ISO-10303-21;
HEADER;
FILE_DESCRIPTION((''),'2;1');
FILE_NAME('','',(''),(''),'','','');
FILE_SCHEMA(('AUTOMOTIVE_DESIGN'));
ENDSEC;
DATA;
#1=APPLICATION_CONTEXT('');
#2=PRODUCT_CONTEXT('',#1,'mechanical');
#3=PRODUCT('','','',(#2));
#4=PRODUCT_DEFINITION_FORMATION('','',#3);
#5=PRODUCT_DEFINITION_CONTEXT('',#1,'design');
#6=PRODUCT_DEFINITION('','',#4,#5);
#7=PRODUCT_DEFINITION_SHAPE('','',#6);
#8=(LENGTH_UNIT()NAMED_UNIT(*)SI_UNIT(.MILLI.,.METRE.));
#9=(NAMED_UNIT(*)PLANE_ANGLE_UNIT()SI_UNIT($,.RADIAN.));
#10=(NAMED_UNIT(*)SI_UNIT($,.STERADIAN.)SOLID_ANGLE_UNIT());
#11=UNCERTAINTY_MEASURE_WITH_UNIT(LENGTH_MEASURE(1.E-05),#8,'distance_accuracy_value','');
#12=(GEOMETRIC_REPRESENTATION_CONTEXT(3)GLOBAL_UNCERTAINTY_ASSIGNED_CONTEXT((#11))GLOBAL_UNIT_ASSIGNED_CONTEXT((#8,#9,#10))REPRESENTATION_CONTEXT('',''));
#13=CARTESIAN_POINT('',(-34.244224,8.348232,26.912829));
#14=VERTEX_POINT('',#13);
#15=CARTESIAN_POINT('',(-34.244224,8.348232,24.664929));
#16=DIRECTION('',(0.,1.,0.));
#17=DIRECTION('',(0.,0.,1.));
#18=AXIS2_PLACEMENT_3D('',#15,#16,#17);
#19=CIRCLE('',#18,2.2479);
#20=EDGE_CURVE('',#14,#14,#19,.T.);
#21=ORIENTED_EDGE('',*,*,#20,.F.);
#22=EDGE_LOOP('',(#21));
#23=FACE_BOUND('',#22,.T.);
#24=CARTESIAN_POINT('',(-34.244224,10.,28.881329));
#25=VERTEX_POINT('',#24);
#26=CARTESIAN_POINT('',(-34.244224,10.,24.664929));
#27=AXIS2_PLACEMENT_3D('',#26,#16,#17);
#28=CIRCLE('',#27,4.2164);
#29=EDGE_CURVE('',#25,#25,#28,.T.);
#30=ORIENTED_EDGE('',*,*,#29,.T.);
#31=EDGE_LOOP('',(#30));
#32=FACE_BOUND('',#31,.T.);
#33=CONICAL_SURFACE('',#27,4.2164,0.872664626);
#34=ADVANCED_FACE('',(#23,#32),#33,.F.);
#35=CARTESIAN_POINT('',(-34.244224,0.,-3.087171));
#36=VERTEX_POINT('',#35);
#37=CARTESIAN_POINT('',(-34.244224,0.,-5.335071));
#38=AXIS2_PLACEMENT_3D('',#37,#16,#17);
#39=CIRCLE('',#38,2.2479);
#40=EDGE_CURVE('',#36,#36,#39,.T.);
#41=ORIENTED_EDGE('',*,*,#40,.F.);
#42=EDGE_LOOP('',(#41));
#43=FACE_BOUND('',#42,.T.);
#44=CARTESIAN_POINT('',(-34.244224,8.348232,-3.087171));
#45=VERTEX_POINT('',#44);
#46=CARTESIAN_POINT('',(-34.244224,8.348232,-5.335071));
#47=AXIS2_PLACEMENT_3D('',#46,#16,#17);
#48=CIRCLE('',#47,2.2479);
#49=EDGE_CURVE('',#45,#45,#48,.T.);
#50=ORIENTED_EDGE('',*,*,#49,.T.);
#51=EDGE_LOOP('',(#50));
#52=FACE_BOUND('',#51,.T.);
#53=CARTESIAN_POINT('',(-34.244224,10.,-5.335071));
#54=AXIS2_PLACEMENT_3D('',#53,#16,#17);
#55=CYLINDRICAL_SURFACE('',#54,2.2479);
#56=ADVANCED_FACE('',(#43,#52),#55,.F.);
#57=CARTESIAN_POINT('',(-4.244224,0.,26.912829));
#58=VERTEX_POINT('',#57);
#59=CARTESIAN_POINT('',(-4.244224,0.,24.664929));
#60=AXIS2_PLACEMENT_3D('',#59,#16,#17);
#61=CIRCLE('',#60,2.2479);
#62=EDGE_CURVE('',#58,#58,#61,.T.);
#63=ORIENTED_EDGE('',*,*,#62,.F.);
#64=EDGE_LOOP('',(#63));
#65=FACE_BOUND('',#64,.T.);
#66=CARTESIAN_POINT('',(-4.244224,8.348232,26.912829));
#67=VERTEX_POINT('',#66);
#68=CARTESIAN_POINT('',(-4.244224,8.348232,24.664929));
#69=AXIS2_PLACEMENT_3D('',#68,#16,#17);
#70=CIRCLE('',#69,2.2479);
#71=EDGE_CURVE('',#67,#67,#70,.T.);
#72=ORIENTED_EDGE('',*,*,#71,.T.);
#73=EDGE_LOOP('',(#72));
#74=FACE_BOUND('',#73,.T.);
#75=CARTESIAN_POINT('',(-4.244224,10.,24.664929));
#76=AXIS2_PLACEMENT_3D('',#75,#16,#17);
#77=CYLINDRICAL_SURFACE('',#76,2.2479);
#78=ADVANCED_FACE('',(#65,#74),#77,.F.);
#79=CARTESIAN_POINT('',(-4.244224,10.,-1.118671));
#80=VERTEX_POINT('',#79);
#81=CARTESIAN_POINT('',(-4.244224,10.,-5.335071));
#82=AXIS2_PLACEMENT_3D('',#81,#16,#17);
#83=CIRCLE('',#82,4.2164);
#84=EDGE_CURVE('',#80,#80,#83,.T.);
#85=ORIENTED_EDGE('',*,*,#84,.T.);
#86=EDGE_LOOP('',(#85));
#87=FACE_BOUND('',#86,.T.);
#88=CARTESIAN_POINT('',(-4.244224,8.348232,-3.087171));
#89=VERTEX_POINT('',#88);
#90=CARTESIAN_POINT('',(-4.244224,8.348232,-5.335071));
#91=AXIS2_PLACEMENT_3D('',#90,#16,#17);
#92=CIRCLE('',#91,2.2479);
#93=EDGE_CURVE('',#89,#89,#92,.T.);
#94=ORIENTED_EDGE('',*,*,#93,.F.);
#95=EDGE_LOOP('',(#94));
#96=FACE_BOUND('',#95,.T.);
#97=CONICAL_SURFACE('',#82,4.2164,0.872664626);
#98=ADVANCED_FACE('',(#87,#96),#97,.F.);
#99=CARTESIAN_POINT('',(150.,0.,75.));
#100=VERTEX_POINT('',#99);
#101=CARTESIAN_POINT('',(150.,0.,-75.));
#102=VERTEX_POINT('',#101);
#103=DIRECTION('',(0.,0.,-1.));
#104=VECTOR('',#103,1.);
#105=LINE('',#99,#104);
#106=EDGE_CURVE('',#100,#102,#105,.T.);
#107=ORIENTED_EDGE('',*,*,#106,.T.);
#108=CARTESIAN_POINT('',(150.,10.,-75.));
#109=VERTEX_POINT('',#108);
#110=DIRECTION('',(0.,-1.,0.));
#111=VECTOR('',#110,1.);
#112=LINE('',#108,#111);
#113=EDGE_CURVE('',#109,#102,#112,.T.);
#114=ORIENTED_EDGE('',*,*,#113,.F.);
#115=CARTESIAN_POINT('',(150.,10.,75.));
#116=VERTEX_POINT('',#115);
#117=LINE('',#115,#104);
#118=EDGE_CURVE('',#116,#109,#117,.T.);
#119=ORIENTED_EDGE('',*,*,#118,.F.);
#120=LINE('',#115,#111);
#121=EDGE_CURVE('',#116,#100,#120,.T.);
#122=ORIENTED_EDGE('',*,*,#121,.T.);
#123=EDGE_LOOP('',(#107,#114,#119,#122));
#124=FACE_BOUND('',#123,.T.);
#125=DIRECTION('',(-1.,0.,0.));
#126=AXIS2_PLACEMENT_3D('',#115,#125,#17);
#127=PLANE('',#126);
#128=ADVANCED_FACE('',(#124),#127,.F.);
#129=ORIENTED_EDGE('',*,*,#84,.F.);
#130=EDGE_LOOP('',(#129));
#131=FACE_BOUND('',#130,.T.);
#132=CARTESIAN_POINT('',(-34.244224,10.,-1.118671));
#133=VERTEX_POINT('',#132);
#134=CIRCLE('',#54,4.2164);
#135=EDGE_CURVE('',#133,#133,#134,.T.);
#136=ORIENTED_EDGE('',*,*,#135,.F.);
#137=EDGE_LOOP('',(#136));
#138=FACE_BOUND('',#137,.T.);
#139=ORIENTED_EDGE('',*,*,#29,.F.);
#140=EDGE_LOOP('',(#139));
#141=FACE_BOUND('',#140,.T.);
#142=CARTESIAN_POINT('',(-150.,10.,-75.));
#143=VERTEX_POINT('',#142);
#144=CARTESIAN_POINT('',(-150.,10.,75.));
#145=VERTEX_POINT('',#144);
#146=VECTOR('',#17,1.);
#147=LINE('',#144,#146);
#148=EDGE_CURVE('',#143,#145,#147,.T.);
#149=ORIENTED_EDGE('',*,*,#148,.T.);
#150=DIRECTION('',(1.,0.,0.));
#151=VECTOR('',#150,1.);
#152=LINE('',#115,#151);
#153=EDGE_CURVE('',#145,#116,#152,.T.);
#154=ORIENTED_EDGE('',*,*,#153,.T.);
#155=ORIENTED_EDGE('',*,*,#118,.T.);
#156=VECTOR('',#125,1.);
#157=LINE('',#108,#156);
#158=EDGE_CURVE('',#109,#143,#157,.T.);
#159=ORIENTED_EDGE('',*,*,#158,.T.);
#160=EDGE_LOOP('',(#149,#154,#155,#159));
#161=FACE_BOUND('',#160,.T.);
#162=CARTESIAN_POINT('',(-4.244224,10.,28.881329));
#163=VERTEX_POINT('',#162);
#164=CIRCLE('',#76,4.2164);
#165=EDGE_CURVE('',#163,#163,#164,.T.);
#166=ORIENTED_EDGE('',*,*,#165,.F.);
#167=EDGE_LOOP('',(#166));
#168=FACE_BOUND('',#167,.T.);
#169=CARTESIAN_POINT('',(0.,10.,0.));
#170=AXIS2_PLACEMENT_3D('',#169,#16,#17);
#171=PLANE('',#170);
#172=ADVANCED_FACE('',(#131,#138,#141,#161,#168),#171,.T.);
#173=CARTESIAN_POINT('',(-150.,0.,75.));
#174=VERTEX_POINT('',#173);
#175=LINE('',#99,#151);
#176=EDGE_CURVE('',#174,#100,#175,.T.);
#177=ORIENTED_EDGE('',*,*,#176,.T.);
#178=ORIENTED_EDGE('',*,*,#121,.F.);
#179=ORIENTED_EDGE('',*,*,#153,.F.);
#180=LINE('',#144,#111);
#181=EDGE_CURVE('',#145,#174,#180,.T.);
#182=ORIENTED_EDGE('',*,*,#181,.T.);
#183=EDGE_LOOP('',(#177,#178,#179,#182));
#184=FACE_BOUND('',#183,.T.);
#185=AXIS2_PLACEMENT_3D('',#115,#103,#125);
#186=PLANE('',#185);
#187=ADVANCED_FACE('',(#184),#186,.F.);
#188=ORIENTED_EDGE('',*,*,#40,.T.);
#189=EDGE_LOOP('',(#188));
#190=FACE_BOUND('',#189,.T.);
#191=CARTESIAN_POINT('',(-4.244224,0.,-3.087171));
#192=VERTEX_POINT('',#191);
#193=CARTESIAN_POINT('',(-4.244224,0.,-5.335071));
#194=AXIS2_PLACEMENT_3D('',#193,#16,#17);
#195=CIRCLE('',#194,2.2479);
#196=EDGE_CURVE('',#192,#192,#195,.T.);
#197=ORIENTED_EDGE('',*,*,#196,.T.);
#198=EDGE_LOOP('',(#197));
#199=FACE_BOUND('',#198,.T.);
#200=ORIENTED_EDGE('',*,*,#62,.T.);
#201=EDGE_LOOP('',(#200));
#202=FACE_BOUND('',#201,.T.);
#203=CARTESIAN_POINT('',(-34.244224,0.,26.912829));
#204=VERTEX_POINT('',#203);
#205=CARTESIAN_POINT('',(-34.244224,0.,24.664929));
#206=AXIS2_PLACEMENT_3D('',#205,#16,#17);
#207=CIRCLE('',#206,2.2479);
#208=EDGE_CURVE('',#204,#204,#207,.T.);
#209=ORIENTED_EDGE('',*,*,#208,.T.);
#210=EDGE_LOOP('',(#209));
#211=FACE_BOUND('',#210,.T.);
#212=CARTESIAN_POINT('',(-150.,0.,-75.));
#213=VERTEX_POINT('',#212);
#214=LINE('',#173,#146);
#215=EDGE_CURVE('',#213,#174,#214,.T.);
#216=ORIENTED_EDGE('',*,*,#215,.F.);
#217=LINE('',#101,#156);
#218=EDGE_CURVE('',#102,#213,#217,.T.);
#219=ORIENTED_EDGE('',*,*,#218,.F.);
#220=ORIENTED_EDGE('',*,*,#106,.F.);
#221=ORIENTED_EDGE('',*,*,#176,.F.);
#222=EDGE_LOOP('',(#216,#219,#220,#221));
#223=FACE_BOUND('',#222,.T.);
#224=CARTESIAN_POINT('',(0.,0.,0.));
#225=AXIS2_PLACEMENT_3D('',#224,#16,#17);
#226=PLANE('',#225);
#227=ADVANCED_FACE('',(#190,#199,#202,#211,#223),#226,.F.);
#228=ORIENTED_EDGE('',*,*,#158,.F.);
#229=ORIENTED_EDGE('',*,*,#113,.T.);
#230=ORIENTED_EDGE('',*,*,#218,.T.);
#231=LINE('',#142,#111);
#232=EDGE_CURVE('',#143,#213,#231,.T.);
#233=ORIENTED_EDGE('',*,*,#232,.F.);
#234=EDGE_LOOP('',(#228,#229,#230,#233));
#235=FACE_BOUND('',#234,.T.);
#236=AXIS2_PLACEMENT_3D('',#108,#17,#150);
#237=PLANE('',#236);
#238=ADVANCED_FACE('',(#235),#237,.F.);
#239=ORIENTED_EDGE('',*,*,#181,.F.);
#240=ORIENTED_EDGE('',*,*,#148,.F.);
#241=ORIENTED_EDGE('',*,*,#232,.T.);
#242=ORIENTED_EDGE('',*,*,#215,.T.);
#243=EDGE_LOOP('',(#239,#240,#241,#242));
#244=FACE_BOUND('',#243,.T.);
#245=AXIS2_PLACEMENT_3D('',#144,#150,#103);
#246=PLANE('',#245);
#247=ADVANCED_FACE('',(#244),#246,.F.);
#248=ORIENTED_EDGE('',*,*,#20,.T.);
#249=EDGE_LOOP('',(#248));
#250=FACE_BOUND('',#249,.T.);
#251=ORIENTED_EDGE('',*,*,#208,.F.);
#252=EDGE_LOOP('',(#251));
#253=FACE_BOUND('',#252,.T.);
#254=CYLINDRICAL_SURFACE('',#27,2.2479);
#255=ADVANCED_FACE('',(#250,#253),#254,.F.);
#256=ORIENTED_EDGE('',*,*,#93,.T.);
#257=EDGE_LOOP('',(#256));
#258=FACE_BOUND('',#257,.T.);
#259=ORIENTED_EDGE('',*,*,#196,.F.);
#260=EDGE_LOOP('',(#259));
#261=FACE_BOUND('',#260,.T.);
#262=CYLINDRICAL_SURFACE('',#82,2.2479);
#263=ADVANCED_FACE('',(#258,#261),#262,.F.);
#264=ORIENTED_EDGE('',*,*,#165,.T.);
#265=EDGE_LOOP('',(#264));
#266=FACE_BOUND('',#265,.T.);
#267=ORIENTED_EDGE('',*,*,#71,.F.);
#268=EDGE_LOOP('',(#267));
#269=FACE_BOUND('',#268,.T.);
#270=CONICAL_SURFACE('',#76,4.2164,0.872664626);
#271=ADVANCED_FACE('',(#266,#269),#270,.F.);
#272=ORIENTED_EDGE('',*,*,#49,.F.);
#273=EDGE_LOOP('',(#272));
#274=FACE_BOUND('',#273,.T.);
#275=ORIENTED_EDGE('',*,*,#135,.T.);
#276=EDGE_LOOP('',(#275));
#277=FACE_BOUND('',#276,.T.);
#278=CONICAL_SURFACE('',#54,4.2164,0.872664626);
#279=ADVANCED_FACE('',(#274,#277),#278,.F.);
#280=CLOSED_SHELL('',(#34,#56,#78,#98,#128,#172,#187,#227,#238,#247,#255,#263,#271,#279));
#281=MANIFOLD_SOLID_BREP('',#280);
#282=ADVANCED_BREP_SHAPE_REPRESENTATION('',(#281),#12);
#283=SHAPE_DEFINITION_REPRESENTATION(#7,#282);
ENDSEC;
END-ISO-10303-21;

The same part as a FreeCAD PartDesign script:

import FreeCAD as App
import Part
import Sketcher
from FreeCAD import Vector

doc = App.newDocument("Part")
body = doc.addObject("PartDesign::Body", "Body")

sketch1 = body.newObject("Sketcher::SketchObject", "Sketch")
sketch1.AttachmentSupport = (doc.getObject("XZ_Plane"), [""])
sketch1.MapMode = "FlatFace"
sketch1.addGeometry([
    Part.LineSegment(Vector(-150, -75, 0), Vector(-150, 75, 0)),
    Part.LineSegment(Vector(-150, 75, 0), Vector(150, 75, 0)),
    Part.LineSegment(Vector(150, 75, 0), Vector(150, -75, 0)),
    Part.LineSegment(Vector(150, -75, 0), Vector(-150, -75, 0)),
], False)
sketch1.addConstraint([
    Sketcher.Constraint("Coincident", 0, 2, 1, 1),
    Sketcher.Constraint("Coincident", 1, 2, 2, 1),
    Sketcher.Constraint("Coincident", 2, 2, 3, 1),
    Sketcher.Constraint("Coincident", 3, 2, 0, 1),
    Sketcher.Constraint("Vertical", 0),
    Sketcher.Constraint("Horizontal", 1),
    Sketcher.Constraint("Vertical", 2),
    Sketcher.Constraint("Horizontal", 3),
    Sketcher.Constraint("Symmetric", 0, 2, 2, 2, -1, 1),
    Sketcher.Constraint("DistanceX", 1, 1, 1, 2, 300.0),
    Sketcher.Constraint("DistanceY", 0, 1, 0, 2, 150.0),
])
pad1 = body.newObject("PartDesign::Pad", "Pad")
pad1.Profile = sketch1
pad1.Length = 10
pad1.Reversed = True

sketch2 = body.newObject("Sketcher::SketchObject", "Sketch001")
sketch2.AttachmentSupport = (doc.getObject("XZ_Plane"), [""])
sketch2.MapMode = "FlatFace"
sketch2.AttachmentOffset = App.Placement(Vector(0, 0, -10), App.Rotation())
sketch2.addGeometry([
    Part.Circle(Vector(-4.244224, -5.335071, 0), Vector(0, 0, 1), 2.2479),
    Part.Circle(Vector(-4.244224, 24.664929, 0), Vector(0, 0, 1), 2.2479),
    Part.Circle(Vector(-34.244224, 24.664929, 0), Vector(0, 0, 1), 2.2479),
    Part.Circle(Vector(-34.244224, -5.335071, 0), Vector(0, 0, 1), 2.2479),
], False)
sketch2.addConstraint([
    Sketcher.Constraint("Equal", 0, 1),
    Sketcher.Constraint("Equal", 1, 2),
    Sketcher.Constraint("Equal", 2, 3),
    Sketcher.Constraint("Horizontal", 1, 3, 2, 3),
    Sketcher.Constraint("Horizontal", 0, 3, 3, 3),
    Sketcher.Constraint("Vertical", 0, 3, 1, 3),
    Sketcher.Constraint("Vertical", 2, 3, 3, 3),
    Sketcher.Constraint("DistanceY", 0, 3, 1, 3, 30.0),
    Sketcher.Constraint("DistanceX", 2, 3, 1, 3, 30.0),
    Sketcher.Constraint("Diameter", 0, 4.4958),
    Sketcher.Constraint("DistanceY", 0, 3, -1, 1, 5.335071),
    Sketcher.Constraint("DistanceX", 0, 3, -1, 1, 4.244224),
])
doc.recompute()
hole = body.newObject("PartDesign::Hole", "Hole")
hole.Profile = sketch2
hole.ThreadType = "None"
hole.Diameter = 4.4958
hole.DepthType = "ThroughAll"
hole.HoleCutType = "Countersink"
hole.HoleCutDiameter = 8.4328
hole.HoleCutCountersinkAngle = 100
hole.Reversed = True

doc.recompute()
